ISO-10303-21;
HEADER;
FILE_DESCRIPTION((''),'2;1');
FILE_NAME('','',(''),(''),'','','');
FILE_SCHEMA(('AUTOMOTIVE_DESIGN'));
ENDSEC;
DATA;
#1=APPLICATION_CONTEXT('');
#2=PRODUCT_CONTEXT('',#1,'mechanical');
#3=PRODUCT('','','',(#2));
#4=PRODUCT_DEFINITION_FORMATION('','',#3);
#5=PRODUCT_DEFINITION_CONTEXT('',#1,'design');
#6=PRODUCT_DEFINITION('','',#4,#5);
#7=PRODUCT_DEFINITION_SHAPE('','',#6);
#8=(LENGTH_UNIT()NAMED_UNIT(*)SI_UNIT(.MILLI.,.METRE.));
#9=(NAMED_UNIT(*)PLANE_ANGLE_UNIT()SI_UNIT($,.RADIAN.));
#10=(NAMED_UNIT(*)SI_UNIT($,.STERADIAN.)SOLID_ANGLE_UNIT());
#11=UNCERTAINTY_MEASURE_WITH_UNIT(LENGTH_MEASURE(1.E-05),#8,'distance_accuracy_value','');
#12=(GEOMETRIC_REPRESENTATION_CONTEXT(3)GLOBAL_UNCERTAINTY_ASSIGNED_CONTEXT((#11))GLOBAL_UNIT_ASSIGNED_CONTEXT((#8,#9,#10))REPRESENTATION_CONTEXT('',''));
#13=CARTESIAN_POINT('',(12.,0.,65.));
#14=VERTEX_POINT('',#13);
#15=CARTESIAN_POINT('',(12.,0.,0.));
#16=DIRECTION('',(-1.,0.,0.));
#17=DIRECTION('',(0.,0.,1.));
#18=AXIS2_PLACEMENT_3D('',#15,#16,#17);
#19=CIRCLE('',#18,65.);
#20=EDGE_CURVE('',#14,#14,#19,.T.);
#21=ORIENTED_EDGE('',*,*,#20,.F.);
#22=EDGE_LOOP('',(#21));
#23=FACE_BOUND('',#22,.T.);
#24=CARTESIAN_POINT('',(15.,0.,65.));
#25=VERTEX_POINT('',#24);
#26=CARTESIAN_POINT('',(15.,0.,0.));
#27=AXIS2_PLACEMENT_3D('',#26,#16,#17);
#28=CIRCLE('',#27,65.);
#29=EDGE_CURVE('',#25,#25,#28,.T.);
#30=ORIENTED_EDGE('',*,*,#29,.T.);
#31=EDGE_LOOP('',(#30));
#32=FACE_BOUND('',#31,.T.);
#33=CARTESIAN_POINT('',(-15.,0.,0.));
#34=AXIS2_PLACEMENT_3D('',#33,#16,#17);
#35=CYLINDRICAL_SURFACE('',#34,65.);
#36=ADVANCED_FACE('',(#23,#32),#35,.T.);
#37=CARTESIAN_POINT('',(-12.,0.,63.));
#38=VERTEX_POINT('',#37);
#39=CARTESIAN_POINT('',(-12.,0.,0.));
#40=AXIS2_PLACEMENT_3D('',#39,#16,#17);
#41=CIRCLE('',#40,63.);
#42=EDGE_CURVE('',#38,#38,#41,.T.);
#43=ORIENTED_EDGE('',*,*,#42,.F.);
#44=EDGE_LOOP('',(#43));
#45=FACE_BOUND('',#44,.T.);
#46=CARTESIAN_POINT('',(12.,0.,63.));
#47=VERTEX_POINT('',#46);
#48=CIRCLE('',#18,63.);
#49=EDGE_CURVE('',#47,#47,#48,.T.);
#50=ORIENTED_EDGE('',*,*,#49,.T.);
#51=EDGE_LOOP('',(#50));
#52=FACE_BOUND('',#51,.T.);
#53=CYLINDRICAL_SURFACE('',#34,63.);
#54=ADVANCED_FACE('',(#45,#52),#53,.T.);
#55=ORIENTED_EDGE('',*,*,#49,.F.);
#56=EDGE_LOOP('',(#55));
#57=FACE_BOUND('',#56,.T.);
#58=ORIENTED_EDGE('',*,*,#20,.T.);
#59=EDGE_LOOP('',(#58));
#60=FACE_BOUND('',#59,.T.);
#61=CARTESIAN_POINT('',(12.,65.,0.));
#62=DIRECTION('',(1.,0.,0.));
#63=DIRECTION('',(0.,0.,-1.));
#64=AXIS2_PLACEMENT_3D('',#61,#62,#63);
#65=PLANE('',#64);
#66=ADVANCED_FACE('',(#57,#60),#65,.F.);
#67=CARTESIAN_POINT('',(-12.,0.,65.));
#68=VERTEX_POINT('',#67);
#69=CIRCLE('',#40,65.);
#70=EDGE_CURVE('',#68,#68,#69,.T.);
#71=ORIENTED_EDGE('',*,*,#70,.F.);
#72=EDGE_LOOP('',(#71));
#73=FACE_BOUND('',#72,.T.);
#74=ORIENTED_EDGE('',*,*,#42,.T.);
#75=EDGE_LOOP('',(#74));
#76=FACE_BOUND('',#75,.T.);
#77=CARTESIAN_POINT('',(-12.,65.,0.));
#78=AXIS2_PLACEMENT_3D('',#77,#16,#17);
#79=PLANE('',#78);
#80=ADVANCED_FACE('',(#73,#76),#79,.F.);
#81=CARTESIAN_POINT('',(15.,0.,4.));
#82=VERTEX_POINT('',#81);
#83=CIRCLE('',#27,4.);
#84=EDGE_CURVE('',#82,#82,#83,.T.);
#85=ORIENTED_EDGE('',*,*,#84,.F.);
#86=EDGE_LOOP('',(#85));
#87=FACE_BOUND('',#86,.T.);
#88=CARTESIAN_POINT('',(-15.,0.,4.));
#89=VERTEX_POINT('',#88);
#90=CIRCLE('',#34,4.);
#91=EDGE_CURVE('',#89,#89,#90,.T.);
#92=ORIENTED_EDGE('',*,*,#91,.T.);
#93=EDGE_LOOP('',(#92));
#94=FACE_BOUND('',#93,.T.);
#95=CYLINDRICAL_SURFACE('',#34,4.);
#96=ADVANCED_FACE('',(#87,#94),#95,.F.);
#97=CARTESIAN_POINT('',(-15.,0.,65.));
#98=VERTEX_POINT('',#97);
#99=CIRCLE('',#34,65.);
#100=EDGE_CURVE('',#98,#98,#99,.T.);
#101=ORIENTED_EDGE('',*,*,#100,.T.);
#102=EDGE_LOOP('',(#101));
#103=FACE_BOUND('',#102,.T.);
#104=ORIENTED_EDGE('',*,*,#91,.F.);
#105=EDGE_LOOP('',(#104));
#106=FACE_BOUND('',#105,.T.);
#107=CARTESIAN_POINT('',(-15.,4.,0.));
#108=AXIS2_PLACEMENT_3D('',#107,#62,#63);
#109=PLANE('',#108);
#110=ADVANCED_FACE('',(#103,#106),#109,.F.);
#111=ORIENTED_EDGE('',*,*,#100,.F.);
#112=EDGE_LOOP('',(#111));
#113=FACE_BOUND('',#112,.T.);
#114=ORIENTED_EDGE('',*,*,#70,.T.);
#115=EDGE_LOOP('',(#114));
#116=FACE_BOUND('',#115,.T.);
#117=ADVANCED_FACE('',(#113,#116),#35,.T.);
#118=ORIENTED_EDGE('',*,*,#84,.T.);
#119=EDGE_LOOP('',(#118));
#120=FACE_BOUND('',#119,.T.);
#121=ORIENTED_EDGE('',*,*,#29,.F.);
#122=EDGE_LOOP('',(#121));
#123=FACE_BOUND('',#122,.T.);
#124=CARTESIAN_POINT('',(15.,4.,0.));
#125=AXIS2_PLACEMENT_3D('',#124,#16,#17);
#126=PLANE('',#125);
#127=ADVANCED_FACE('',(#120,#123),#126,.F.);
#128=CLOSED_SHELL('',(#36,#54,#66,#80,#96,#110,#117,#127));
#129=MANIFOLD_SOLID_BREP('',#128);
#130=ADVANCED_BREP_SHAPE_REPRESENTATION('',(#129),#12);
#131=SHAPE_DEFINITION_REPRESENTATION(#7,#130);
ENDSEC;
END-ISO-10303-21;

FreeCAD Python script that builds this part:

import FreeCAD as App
import Part
import Sketcher
from FreeCAD import Vector


def add_polygon(sketch, points):
    """Adds a closed chain of lines whose ends are joined by coincident constraints."""
    first, n = sketch.GeometryCount, len(points)
    for a, b in zip(points, points[1:] + points[:1]):
        sketch.addGeometry(Part.LineSegment(App.Vector(*a, 0), App.Vector(*b, 0)), False)
    for i in range(n):
        sketch.addConstraint(Sketcher.Constraint("Coincident", first + i, 2, first + (i + 1) % n, 1))

doc = App.newDocument("Part")
body = doc.addObject("PartDesign::Body", "Body")

# Sketch on XY plane
sketch1 = doc.addObject("Sketcher::SketchObject", "Sketch")
body.addObject(sketch1)
sketch1.AttachmentSupport = (doc.XY_Plane, [""])
sketch1.MapMode = "FlatFace"
add_polygon(sketch1, [(15, 65), (12, 65), (12, 63), (-12, 63), (-12, 65), (-15, 65), (-15, 4), (15, 4)])  # lines 0-7
sketch1.addConstraint([
    Sketcher.Constraint("Horizontal", 0),
    Sketcher.Constraint("Vertical", 1),
    Sketcher.Constraint("Horizontal", 2),
    Sketcher.Constraint("Vertical", 3),
    Sketcher.Constraint("Horizontal", 4),
    Sketcher.Constraint("Vertical", 5),
    Sketcher.Constraint("Horizontal", 6),
    Sketcher.Constraint("Vertical", 7),
    Sketcher.Constraint("Symmetric", 0, 2, 3, 2, -2),
    Sketcher.Constraint("Equal", 0, 4),
    Sketcher.Constraint("DistanceX", 0, 2, 0, 1, 3.0),
    Sketcher.Constraint("DistanceX", 2, 2, 2, 1, 24.0),
    Sketcher.Constraint("DistanceY", 1, 2, 1, 1, 2.0),
    Sketcher.Constraint("DistanceY", 5, 2, 5, 1, 61.0),
    Sketcher.Constraint("DistanceY", -1, 1, 0, 2, 65.0),
])
revolution = doc.addObject("PartDesign::Revolution", "Revolution")
body.addObject(revolution)
revolution.Profile = sketch1
revolution.ReferenceAxis = (sketch1, ["H_Axis"])
revolution.Angle = 360

doc.recompute()
